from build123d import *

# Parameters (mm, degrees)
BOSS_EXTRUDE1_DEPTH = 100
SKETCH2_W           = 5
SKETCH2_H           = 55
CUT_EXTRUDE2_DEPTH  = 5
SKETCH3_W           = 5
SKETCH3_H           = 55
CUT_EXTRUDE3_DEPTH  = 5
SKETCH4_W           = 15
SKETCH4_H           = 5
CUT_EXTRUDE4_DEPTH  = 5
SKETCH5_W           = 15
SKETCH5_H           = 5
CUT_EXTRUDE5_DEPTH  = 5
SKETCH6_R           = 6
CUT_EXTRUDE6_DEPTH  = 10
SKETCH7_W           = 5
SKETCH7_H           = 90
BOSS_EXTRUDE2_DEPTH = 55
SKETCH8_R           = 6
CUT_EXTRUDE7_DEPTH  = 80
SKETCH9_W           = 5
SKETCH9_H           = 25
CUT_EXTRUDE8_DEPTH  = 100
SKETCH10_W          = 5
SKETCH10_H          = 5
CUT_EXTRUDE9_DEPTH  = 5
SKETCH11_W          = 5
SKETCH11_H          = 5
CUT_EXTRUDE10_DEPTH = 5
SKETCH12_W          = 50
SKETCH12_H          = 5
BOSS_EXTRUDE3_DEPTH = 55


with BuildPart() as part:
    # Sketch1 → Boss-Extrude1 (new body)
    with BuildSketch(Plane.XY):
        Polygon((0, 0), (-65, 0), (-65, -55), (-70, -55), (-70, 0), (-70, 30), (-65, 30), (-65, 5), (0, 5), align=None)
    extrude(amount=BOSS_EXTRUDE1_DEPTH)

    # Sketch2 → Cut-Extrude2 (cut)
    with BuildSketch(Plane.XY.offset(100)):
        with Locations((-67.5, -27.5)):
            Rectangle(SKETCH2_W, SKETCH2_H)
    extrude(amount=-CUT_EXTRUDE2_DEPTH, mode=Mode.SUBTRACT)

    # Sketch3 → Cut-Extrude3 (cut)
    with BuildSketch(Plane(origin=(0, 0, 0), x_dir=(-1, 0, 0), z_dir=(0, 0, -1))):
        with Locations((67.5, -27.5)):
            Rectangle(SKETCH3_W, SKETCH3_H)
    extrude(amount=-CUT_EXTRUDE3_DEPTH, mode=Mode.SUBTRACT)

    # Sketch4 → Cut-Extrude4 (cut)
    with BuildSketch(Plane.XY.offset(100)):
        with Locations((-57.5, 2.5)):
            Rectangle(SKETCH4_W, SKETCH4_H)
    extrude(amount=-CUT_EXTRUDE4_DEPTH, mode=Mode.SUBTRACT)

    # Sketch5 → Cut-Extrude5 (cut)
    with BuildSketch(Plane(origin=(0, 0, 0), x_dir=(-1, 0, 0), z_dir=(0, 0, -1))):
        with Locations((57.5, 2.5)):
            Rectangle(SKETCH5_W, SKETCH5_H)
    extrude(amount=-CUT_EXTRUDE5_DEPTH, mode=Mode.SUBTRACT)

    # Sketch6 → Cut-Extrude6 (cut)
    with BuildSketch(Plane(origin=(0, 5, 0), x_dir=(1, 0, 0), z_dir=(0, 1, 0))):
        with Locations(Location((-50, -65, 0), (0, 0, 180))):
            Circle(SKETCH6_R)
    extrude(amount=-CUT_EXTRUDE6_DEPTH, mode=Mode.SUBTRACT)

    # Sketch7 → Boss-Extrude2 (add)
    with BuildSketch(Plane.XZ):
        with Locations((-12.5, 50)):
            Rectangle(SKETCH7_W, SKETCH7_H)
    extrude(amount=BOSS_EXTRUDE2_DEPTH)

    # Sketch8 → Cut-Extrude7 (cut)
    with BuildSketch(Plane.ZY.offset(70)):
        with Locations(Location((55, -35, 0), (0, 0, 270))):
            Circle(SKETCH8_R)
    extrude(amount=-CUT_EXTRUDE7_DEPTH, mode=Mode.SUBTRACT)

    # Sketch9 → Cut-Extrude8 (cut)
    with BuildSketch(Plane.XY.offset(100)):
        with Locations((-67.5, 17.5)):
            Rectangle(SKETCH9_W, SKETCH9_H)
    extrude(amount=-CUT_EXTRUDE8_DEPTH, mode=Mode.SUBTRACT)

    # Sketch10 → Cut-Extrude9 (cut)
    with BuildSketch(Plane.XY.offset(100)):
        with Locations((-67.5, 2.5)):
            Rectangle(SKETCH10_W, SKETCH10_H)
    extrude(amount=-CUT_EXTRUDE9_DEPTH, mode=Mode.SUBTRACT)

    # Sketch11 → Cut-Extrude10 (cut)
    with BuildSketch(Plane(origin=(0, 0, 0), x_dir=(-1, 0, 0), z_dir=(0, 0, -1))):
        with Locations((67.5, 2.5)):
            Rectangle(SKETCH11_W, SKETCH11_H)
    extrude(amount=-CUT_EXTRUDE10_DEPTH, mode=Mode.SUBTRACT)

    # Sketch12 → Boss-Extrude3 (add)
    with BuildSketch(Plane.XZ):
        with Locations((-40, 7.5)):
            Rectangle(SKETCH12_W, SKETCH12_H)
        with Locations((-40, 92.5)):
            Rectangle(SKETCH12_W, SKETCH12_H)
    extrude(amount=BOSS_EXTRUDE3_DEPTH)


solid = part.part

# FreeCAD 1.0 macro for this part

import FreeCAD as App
import Part
import Sketcher

V = App.Vector

doc = App.newDocument("Part")
body = doc.addObject("PartDesign::Body", "Body")

sketch1 = body.newObject("Sketcher::SketchObject", "Sketch")
sketch1.AttachmentSupport = (doc.getObject("XY_Plane"), [""])
sketch1.MapMode = "FlatFace"
sketch1.addGeometry([
    Part.LineSegment(V(-65, 0, 0), V(0, 0, 0)),
    Part.LineSegment(V(0, 0, 0), V(0, 5, 0)),
    Part.LineSegment(V(0, 5, 0), V(-65, 5, 0)),
    Part.LineSegment(V(-65, 5, 0), V(-65, 30, 0)),
    Part.LineSegment(V(-65, 30, 0), V(-70, 30, 0)),
    Part.LineSegment(V(-70, 30, 0), V(-70, -55, 0)),
    Part.LineSegment(V(-70, -55, 0), V(-65, -55, 0)),
    Part.LineSegment(V(-65, -55, 0), V(-65, 0, 0)),
], False)
sketch1.addConstraint([
    Sketcher.Constraint("Coincident", 0, 2, 1, 1),
    Sketcher.Constraint("Coincident", 1, 2, 2, 1),
    Sketcher.Constraint("Coincident", 2, 2, 3, 1),
    Sketcher.Constraint("Coincident", 3, 2, 4, 1),
    Sketcher.Constraint("Coincident", 4, 2, 5, 1),
    Sketcher.Constraint("Coincident", 5, 2, 6, 1),
    Sketcher.Constraint("Coincident", 6, 2, 7, 1),
    Sketcher.Constraint("Coincident", 7, 2, 0, 1),
    Sketcher.Constraint("Horizontal", 0),
    Sketcher.Constraint("Vertical", 1),
    Sketcher.Constraint("Horizontal", 2),
    Sketcher.Constraint("Vertical", 3),
    Sketcher.Constraint("Horizontal", 4),
    Sketcher.Constraint("Vertical", 5),
    Sketcher.Constraint("Horizontal", 6),
    Sketcher.Constraint("Vertical", 7),
    Sketcher.Constraint("Coincident", 0, 2, -1, 1),
    Sketcher.Constraint("Vertical", 3, 2, 6, 2),
    Sketcher.Constraint("Equal", 6, 1),
    Sketcher.Constraint("DistanceX", 0, 1, 0, 2, 65.0),
    Sketcher.Constraint("DistanceX", 4, 2, 4, 1, 5.0),
    Sketcher.Constraint("DistanceY", 3, 1, 3, 2, 25.0),
    Sketcher.Constraint("DistanceY", 5, 2, 5, 1, 85.0),
])
pad1 = body.newObject("PartDesign::Pad", "Pad")
pad1.Profile = sketch1
pad1.Length = 100

sketch2 = body.newObject("Sketcher::SketchObject", "Sketch001")
sketch2.AttachmentSupport = (doc.getObject("XY_Plane"), [""])
sketch2.MapMode = "FlatFace"
sketch2.AttachmentOffset = App.Placement(V(0, 0, 100), App.Rotation())
sketch2.addGeometry([
    Part.LineSegment(V(-70, 0, 0), V(-70, -55, 0)),
    Part.LineSegment(V(-70, -55, 0), V(-65, -55, 0)),
    Part.LineSegment(V(-65, -55, 0), V(-65, 0, 0)),
    Part.LineSegment(V(-65, 0, 0), V(-70, 0, 0)),
], False)
sketch2.addConstraint([
    Sketcher.Constraint("Coincident", 0, 2, 1, 1),
    Sketcher.Constraint("Coincident", 1, 2, 2, 1),
    Sketcher.Constraint("Coincident", 2, 2, 3, 1),
    Sketcher.Constraint("Coincident", 3, 2, 0, 1),
    Sketcher.Constraint("Vertical", 0),
    Sketcher.Constraint("Horizontal", 1),
    Sketcher.Constraint("Vertical", 2),
    Sketcher.Constraint("Horizontal", 3),
    Sketcher.Constraint("PointOnObject", 2, 2, -1),
    Sketcher.Constraint("DistanceX", 1, 1, 1, 2, 5.0),
    Sketcher.Constraint("DistanceY", 0, 2, 0, 1, 55.0),
    Sketcher.Constraint("DistanceX", 0, 2, -1, 1, 70.0),
])
pocket1 = body.newObject("PartDesign::Pocket", "Pocket")
pocket1.Profile = sketch2
pocket1.Length = 5

sketch3 = body.newObject("Sketcher::SketchObject", "Sketch002")
sketch3.AttachmentSupport = (doc.getObject("XY_Plane"), [""])
sketch3.MapMode = "FlatFace"
sketch3.addGeometry([
    Part.LineSegment(V(-65, 0, 0), V(-65, -55, 0)),
    Part.LineSegment(V(-65, -55, 0), V(-70, -55, 0)),
    Part.LineSegment(V(-70, -55, 0), V(-70, 0, 0)),
    Part.LineSegment(V(-70, 0, 0), V(-65, 0, 0)),
], False)
sketch3.addConstraint([
    Sketcher.Constraint("Coincident", 0, 2, 1, 1),
    Sketcher.Constraint("Coincident", 1, 2, 2, 1),
    Sketcher.Constraint("Coincident", 2, 2, 3, 1),
    Sketcher.Constraint("Coincident", 3, 2, 0, 1),
    Sketcher.Constraint("Vertical", 0),
    Sketcher.Constraint("Horizontal", 1),
    Sketcher.Constraint("Vertical", 2),
    Sketcher.Constraint("Horizontal", 3),
    Sketcher.Constraint("PointOnObject", 2, 2, -1),
    Sketcher.Constraint("DistanceX", 1, 2, 1, 1, 5.0),
    Sketcher.Constraint("DistanceY", 0, 2, 0, 1, 55.0),
    Sketcher.Constraint("DistanceX", 0, 2, -1, 1, 65.0),
])
pocket2 = body.newObject("PartDesign::Pocket", "Pocket001")
pocket2.Profile = sketch3
pocket2.Length = 5
pocket2.Reversed = True

sketch4 = body.newObject("Sketcher::SketchObject", "Sketch003")
sketch4.AttachmentSupport = (doc.getObject("XY_Plane"), [""])
sketch4.MapMode = "FlatFace"
sketch4.AttachmentOffset = App.Placement(V(0, 0, 100), App.Rotation())
sketch4.addGeometry([
    Part.LineSegment(V(-65, 5, 0), V(-65, 0, 0)),
    Part.LineSegment(V(-65, 0, 0), V(-50, 0, 0)),
    Part.LineSegment(V(-50, 0, 0), V(-50, 5, 0)),
    Part.LineSegment(V(-50, 5, 0), V(-65, 5, 0)),
], False)
sketch4.addConstraint([
    Sketcher.Constraint("Coincident", 0, 2, 1, 1),
    Sketcher.Constraint("Coincident", 1, 2, 2, 1),
    Sketcher.Constraint("Coincident", 2, 2, 3, 1),
    Sketcher.Constraint("Coincident", 3, 2, 0, 1),
    Sketcher.Constraint("Vertical", 0),
    Sketcher.Constraint("Horizontal", 1),
    Sketcher.Constraint("Vertical", 2),
    Sketcher.Constraint("Horizontal", 3),
    Sketcher.Constraint("PointOnObject", 0, 2, -1),
    Sketcher.Constraint("DistanceX", 1, 1, 1, 2, 15.0),
    Sketcher.Constraint("DistanceY", 0, 2, 0, 1, 5.0),
    Sketcher.Constraint("DistanceX", 0, 2, -1, 1, 65.0),
])
pocket3 = body.newObject("PartDesign::Pocket", "Pocket002")
pocket3.Profile = sketch4
pocket3.Length = 5

sketch5 = body.newObject("Sketcher::SketchObject", "Sketch004")
sketch5.AttachmentSupport = (doc.getObject("XY_Plane"), [""])
sketch5.MapMode = "FlatFace"
sketch5.addGeometry([
    Part.LineSegment(V(-50, 5, 0), V(-50, 0, 0)),
    Part.LineSegment(V(-50, 0, 0), V(-65, 0, 0)),
    Part.LineSegment(V(-65, 0, 0), V(-65, 5, 0)),
    Part.LineSegment(V(-65, 5, 0), V(-50, 5, 0)),
], False)
sketch5.addConstraint([
    Sketcher.Constraint("Coincident", 0, 2, 1, 1),
    Sketcher.Constraint("Coincident", 1, 2, 2, 1),
    Sketcher.Constraint("Coincident", 2, 2, 3, 1),
    Sketcher.Constraint("Coincident", 3, 2, 0, 1),
    Sketcher.Constraint("Vertical", 0),
    Sketcher.Constraint("Horizontal", 1),
    Sketcher.Constraint("Vertical", 2),
    Sketcher.Constraint("Horizontal", 3),
    Sketcher.Constraint("PointOnObject", 0, 2, -1),
    Sketcher.Constraint("DistanceX", 1, 2, 1, 1, 15.0),
    Sketcher.Constraint("DistanceY", 0, 2, 0, 1, 5.0),
    Sketcher.Constraint("DistanceX", 0, 2, -1, 1, 50.0),
])
pocket4 = body.newObject("PartDesign::Pocket", "Pocket003")
pocket4.Profile = sketch5
pocket4.Length = 5
pocket4.Reversed = True

sketch6 = body.newObject("Sketcher::SketchObject", "Sketch005")
sketch6.AttachmentSupport = (doc.getObject("XZ_Plane"), [""])
sketch6.MapMode = "FlatFace"
sketch6.AttachmentOffset = App.Placement(V(0, 0, -5), App.Rotation())
sketch6.addGeometry(Part.Circle(V(-50, 65, 0), V(0, 0, 1), 6), False)
sketch6.addConstraint([
    Sketcher.Constraint("Diameter", 0, 12.0),
    Sketcher.Constraint("DistanceX", 0, 3, -1, 1, 50.0),
    Sketcher.Constraint("DistanceY", -1, 1, 0, 3, 65.0),
])
pocket5 = body.newObject("PartDesign::Pocket", "Pocket004")
pocket5.Profile = sketch6
pocket5.Length = 10
pocket5.Reversed = True

sketch7 = body.newObject("Sketcher::SketchObject", "Sketch006")
sketch7.AttachmentSupport = (doc.getObject("XZ_Plane"), [""])
sketch7.MapMode = "FlatFace"
sketch7.addGeometry([
    Part.LineSegment(V(-15, 95, 0), V(-15, 5, 0)),
    Part.LineSegment(V(-15, 5, 0), V(-10, 5, 0)),
    Part.LineSegment(V(-10, 5, 0), V(-10, 95, 0)),
    Part.LineSegment(V(-10, 95, 0), V(-15, 95, 0)),
], False)
sketch7.addConstraint([
    Sketcher.Constraint("Coincident", 0, 2, 1, 1),
    Sketcher.Constraint("Coincident", 1, 2, 2, 1),
    Sketcher.Constraint("Coincident", 2, 2, 3, 1),
    Sketcher.Constraint("Coincident", 3, 2, 0, 1),
    Sketcher.Constraint("Vertical", 0),
    Sketcher.Constraint("Horizontal", 1),
    Sketcher.Constraint("Vertical", 2),
    Sketcher.Constraint("Horizontal", 3),
    Sketcher.Constraint("DistanceX", 1, 1, 1, 2, 5.0),
    Sketcher.Constraint("DistanceY", 0, 2, 0, 1, 90.0),
    Sketcher.Constraint("DistanceX", 0, 2, -1, 1, 15.0),
    Sketcher.Constraint("DistanceY", -1, 1, 0, 2, 5.0),
])
pad2 = body.newObject("PartDesign::Pad", "Pad001")
pad2.Profile = sketch7
pad2.Length = 55

sketch8 = body.newObject("Sketcher::SketchObject", "Sketch007")
sketch8.AttachmentSupport = (doc.getObject("YZ_Plane"), [""])
sketch8.MapMode = "FlatFace"
sketch8.AttachmentOffset = App.Placement(V(0, 0, -70), App.Rotation())
sketch8.addGeometry(Part.Circle(V(-35, 55, 0), V(0, 0, 1), 6), False)
sketch8.addConstraint([
    Sketcher.Constraint("Diameter", 0, 12.0),
    Sketcher.Constraint("DistanceX", 0, 3, -1, 1, 35.0),
    Sketcher.Constraint("DistanceY", -1, 1, 0, 3, 55.0),
])
pocket6 = body.newObject("PartDesign::Pocket", "Pocket005")
pocket6.Profile = sketch8
pocket6.Length = 80
pocket6.Reversed = True

sketch9 = body.newObject("Sketcher::SketchObject", "Sketch008")
sketch9.AttachmentSupport = (doc.getObject("XY_Plane"), [""])
sketch9.MapMode = "FlatFace"
sketch9.AttachmentOffset = App.Placement(V(0, 0, 100), App.Rotation())
sketch9.addGeometry([
    Part.LineSegment(V(-70, 30, 0), V(-70, 5, 0)),
    Part.LineSegment(V(-70, 5, 0), V(-65, 5, 0)),
    Part.LineSegment(V(-65, 5, 0), V(-65, 30, 0)),
    Part.LineSegment(V(-65, 30, 0), V(-70, 30, 0)),
], False)
sketch9.addConstraint([
    Sketcher.Constraint("Coincident", 0, 2, 1, 1),
    Sketcher.Constraint("Coincident", 1, 2, 2, 1),
    Sketcher.Constraint("Coincident", 2, 2, 3, 1),
    Sketcher.Constraint("Coincident", 3, 2, 0, 1),
    Sketcher.Constraint("Vertical", 0),
    Sketcher.Constraint("Horizontal", 1),
    Sketcher.Constraint("Vertical", 2),
    Sketcher.Constraint("Horizontal", 3),
    Sketcher.Constraint("DistanceX", 1, 1, 1, 2, 5.0),
    Sketcher.Constraint("DistanceY", 0, 2, 0, 1, 25.0),
    Sketcher.Constraint("DistanceX", 0, 2, -1, 1, 70.0),
    Sketcher.Constraint("DistanceY", -1, 1, 0, 2, 5.0),
])
pocket7 = body.newObject("PartDesign::Pocket", "Pocket006")
pocket7.Profile = sketch9
pocket7.Length = 100

sketch10 = body.newObject("Sketcher::SketchObject", "Sketch009")
sketch10.AttachmentSupport = (doc.getObject("XY_Plane"), [""])
sketch10.MapMode = "FlatFace"
sketch10.AttachmentOffset = App.Placement(V(0, 0, 100), App.Rotation())
sketch10.addGeometry([
    Part.LineSegment(V(-70, 5, 0), V(-70, 0, 0)),
    Part.LineSegment(V(-70, 0, 0), V(-65, 0, 0)),
    Part.LineSegment(V(-65, 0, 0), V(-65, 5, 0)),
    Part.LineSegment(V(-65, 5, 0), V(-70, 5, 0)),
], False)
sketch10.addConstraint([
    Sketcher.Constraint("Coincident", 0, 2, 1, 1),
    Sketcher.Constraint("Coincident", 1, 2, 2, 1),
    Sketcher.Constraint("Coincident", 2, 2, 3, 1),
    Sketcher.Constraint("Coincident", 3, 2, 0, 1),
    Sketcher.Constraint("Vertical", 0),
    Sketcher.Constraint("Horizontal", 1),
    Sketcher.Constraint("Vertical", 2),
    Sketcher.Constraint("Horizontal", 3),
    Sketcher.Constraint("PointOnObject", 0, 2, -1),
    Sketcher.Constraint("Equal", 3, 0),
    Sketcher.Constraint("DistanceX", 1, 1, 1, 2, 5.0),
    Sketcher.Constraint("DistanceX", 0, 2, -1, 1, 70.0),
])
pocket8 = body.newObject("PartDesign::Pocket", "Pocket007")
pocket8.Profile = sketch10
pocket8.Length = 5

sketch11 = body.newObject("Sketcher::SketchObject", "Sketch010")
sketch11.AttachmentSupport = (doc.getObject("XY_Plane"), [""])
sketch11.MapMode = "FlatFace"
sketch11.addGeometry([
    Part.LineSegment(V(-65, 5, 0), V(-65, 0, 0)),
    Part.LineSegment(V(-65, 0, 0), V(-70, 0, 0)),
    Part.LineSegment(V(-70, 0, 0), V(-70, 5, 0)),
    Part.LineSegment(V(-70, 5, 0), V(-65, 5, 0)),
], False)
sketch11.addConstraint([
    Sketcher.Constraint("Coincident", 0, 2, 1, 1),
    Sketcher.Constraint("Coincident", 1, 2, 2, 1),
    Sketcher.Constraint("Coincident", 2, 2, 3, 1),
    Sketcher.Constraint("Coincident", 3, 2, 0, 1),
    Sketcher.Constraint("Vertical", 0),
    Sketcher.Constraint("Horizontal", 1),
    Sketcher.Constraint("Vertical", 2),
    Sketcher.Constraint("Horizontal", 3),
    Sketcher.Constraint("PointOnObject", 0, 2, -1),
    Sketcher.Constraint("Equal", 3, 0),
    Sketcher.Constraint("DistanceX", 1, 2, 1, 1, 5.0),
    Sketcher.Constraint("DistanceX", 0, 2, -1, 1, 65.0),
])
pocket9 = body.newObject("PartDesign::Pocket", "Pocket008")
pocket9.Profile = sketch11
pocket9.Length = 5
pocket9.Reversed = True

sketch12 = body.newObject("Sketcher::SketchObject", "Sketch011")
sketch12.AttachmentSupport = (doc.getObject("XZ_Plane"), [""])
sketch12.MapMode = "FlatFace"
sketch12.addGeometry([
    Part.LineSegment(V(-65, 10, 0), V(-65, 5, 0)),
    Part.LineSegment(V(-65, 5, 0), V(-15, 5, 0)),
    Part.LineSegment(V(-15, 5, 0), V(-15, 10, 0)),
    Part.LineSegment(V(-15, 10, 0), V(-65, 10, 0)),
    Part.LineSegment(V(-65, 95, 0), V(-65, 90, 0)),
    Part.LineSegment(V(-65, 90, 0), V(-15, 90, 0)),
    Part.LineSegment(V(-15, 90, 0), V(-15, 95, 0)),
    Part.LineSegment(V(-15, 95, 0), V(-65, 95, 0)),
], False)
sketch12.addConstraint([
    Sketcher.Constraint("Coincident", 0, 2, 1, 1),
    Sketcher.Constraint("Coincident", 1, 2, 2, 1),
    Sketcher.Constraint("Coincident", 2, 2, 3, 1),
    Sketcher.Constraint("Coincident", 3, 2, 0, 1),
    Sketcher.Constraint("Coincident", 4, 2, 5, 1),
    Sketcher.Constraint("Coincident", 5, 2, 6, 1),
    Sketcher.Constraint("Coincident", 6, 2, 7, 1),
    Sketcher.Constraint("Coincident", 7, 2, 4, 1),
    Sketcher.Constraint("Vertical", 0),
    Sketcher.Constraint("Horizontal", 1),
    Sketcher.Constraint("Vertical", 2),
    Sketcher.Constraint("Horizontal", 3),
    Sketcher.Constraint("Vertical", 4),
    Sketcher.Constraint("Horizontal", 5),
    Sketcher.Constraint("Vertical", 6),
    Sketcher.Constraint("Horizontal", 7),
    Sketcher.Constraint("Vertical", 3, 2, 4, 2),
    Sketcher.Constraint("Vertical", 2, 2, 5, 2),
    Sketcher.Constraint("Equal", 2, 4),
    Sketcher.Constraint("DistanceX", 1, 1, 1, 2, 50.0),
    Sketcher.Constraint("DistanceY", 0, 2, 0, 1, 5.0),
    Sketcher.Constraint("DistanceX", 0, 2, -1, 1, 65.0),
    Sketcher.Constraint("DistanceY", -1, 1, 0, 2, 5.0),
    Sketcher.Constraint("DistanceY", -1, 1, 4, 2, 90.0),
])
pad3 = body.newObject("PartDesign::Pad", "Pad002")
pad3.Profile = sketch12
pad3.Length = 55

doc.recompute()
